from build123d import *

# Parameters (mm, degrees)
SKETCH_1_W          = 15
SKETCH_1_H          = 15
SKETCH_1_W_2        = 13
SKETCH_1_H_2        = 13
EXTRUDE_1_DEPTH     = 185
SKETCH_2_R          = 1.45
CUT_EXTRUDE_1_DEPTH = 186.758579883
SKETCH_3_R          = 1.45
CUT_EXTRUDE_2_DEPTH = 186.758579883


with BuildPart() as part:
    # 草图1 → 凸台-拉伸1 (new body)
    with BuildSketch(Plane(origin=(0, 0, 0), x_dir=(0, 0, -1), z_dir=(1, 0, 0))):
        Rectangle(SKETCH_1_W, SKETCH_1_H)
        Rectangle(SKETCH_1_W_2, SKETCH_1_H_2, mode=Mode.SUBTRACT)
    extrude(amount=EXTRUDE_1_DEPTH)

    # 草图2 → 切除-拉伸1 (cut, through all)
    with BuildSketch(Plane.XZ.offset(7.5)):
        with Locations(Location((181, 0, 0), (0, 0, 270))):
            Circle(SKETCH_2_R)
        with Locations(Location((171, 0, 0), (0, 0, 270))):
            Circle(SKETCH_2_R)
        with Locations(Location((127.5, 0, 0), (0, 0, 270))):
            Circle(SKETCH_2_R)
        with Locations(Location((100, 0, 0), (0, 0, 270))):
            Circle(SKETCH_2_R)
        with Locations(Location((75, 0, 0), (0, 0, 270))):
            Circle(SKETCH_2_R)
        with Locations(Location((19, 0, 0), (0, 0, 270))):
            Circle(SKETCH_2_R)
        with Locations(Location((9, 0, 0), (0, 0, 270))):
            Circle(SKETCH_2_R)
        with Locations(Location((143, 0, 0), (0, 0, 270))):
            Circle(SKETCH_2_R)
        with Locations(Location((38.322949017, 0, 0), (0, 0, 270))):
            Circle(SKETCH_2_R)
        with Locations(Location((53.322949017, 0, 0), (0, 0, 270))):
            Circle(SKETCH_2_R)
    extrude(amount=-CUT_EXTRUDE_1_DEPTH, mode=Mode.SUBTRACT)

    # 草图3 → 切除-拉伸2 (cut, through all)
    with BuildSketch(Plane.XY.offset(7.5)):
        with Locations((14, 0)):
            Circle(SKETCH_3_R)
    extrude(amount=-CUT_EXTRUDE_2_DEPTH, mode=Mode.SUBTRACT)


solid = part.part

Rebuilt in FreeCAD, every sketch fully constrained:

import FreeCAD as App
import Part
import Sketcher

doc = App.newDocument("Part")
body = doc.addObject("PartDesign::Body", "Body")

# Sketch on YZ plane
sketch1 = body.newObject("Sketcher::SketchObject", "Sketch")
sketch1.AttachmentSupport = (doc.getObject("YZ_Plane"), [""])
sketch1.MapMode = "FlatFace"
sketch1.addGeometry([
    Part.LineSegment(App.Vector(8, 8, 0), App.Vector(-8, 8, 0)),  # 0
    Part.LineSegment(App.Vector(-8, 8, 0), App.Vector(-8, -8, 0)),  # 1
    Part.LineSegment(App.Vector(-8, -8, 0), App.Vector(8, -8, 0)),  # 2
    Part.LineSegment(App.Vector(8, -8, 0), App.Vector(8, 8, 0)),  # 3
    Part.LineSegment(App.Vector(-6, -6, 0), App.Vector(-6, 6, 0)),  # 4
    Part.LineSegment(App.Vector(-6, 6, 0), App.Vector(6, 6, 0)),  # 5
    Part.LineSegment(App.Vector(6, 6, 0), App.Vector(6, -6, 0)),  # 6
    Part.LineSegment(App.Vector(6, -6, 0), App.Vector(-6, -6, 0)),  # 7
], False)
sketch1.addConstraint([
    Sketcher.Constraint("Coincident", 0, 2, 1, 1),
    Sketcher.Constraint("Coincident", 1, 2, 2, 1),
    Sketcher.Constraint("Coincident", 2, 2, 3, 1),
    Sketcher.Constraint("Coincident", 3, 2, 0, 1),
    Sketcher.Constraint("Coincident", 4, 2, 5, 1),
    Sketcher.Constraint("Coincident", 5, 2, 6, 1),
    Sketcher.Constraint("Coincident", 6, 2, 7, 1),
    Sketcher.Constraint("Coincident", 7, 2, 4, 1),
    Sketcher.Constraint("Horizontal", 0),
    Sketcher.Constraint("Vertical", 1),
    Sketcher.Constraint("Horizontal", 2),
    Sketcher.Constraint("Vertical", 3),
    Sketcher.Constraint("Vertical", 4),
    Sketcher.Constraint("Horizontal", 5),
    Sketcher.Constraint("Vertical", 6),
    Sketcher.Constraint("Horizontal", 7),
    Sketcher.Constraint("Symmetric", 0, 2, 2, 2, -1, 1),
    Sketcher.Constraint("Symmetric", 4, 2, 6, 2, -1, 1),
    Sketcher.Constraint("Equal", 2, 1),
    Sketcher.Constraint("Equal", 7, 4),
    Sketcher.Constraint("DistanceX", 0, 2, 0, 1, 15.0),
    Sketcher.Constraint("DistanceX", 5, 1, 5, 2, 13.0),
])
pad1 = body.newObject("PartDesign::Pad", "Pad")
pad1.Profile = sketch1
pad1.Length = 185

# Sketch on XZ plane
sketch2 = body.newObject("Sketcher::SketchObject", "Sketch001")
sketch2.AttachmentSupport = (doc.getObject("XZ_Plane"), [""])
sketch2.MapMode = "FlatFace"
sketch2.AttachmentOffset = App.Placement(App.Vector(0, 0, 7.5), App.Rotation())
sketch2.addGeometry([
    Part.Circle(App.Vector(181, 0, 0), App.Vector(0, 0, 1), 1.4),  # 0
    Part.Circle(App.Vector(171, 0, 0), App.Vector(0, 0, 1), 1.4),  # 1
    Part.Circle(App.Vector(127.5, 0, 0), App.Vector(0, 0, 1), 1.4),  # 2
    Part.Circle(App.Vector(100, 0, 0), App.Vector(0, 0, 1), 1.4),  # 3
    Part.Circle(App.Vector(75, 0, 0), App.Vector(0, 0, 1), 1.4),  # 4
    Part.Circle(App.Vector(19, 0, 0), App.Vector(0, 0, 1), 1.4),  # 5
    Part.Circle(App.Vector(9, 0, 0), App.Vector(0, 0, 1), 1.4),  # 6
    Part.Circle(App.Vector(143, 0, 0), App.Vector(0, 0, 1), 1.4),  # 7
    Part.Circle(App.Vector(38.3, 0, 0), App.Vector(0, 0, 1), 1.4),  # 8
    Part.Circle(App.Vector(53.3, 0, 0), App.Vector(0, 0, 1), 1.4),  # 9
], False)
sketch2.addConstraint([
    Sketcher.Constraint("Equal", 0, 1),
    Sketcher.Constraint("Equal", 1, 2),
    Sketcher.Constraint("Equal", 2, 3),
    Sketcher.Constraint("Equal", 3, 4),
    Sketcher.Constraint("Equal", 4, 5),
    Sketcher.Constraint("Equal", 5, 6),
    Sketcher.Constraint("Equal", 6, 7),
    Sketcher.Constraint("Equal", 7, 8),
    Sketcher.Constraint("Equal", 8, 9),
    Sketcher.Constraint("PointOnObject", 0, 3, -1),
    Sketcher.Constraint("PointOnObject", 1, 3, -1),
    Sketcher.Constraint("PointOnObject", 2, 3, -1),
    Sketcher.Constraint("PointOnObject", 3, 3, -1),
    Sketcher.Constraint("PointOnObject", 4, 3, -1),
    Sketcher.Constraint("PointOnObject", 5, 3, -1),
    Sketcher.Constraint("PointOnObject", 6, 3, -1),
    Sketcher.Constraint("PointOnObject", 7, 3, -1),
    Sketcher.Constraint("PointOnObject", 8, 3, -1),
    Sketcher.Constraint("PointOnObject", 9, 3, -1),
    Sketcher.Constraint("Diameter", 0, 2.9),
    Sketcher.Constraint("DistanceX", -1, 1, 0, 3, 181.0),
    Sketcher.Constraint("DistanceX", -1, 1, 1, 3, 171.0),
    Sketcher.Constraint("DistanceX", -1, 1, 3, 3, 100.0),
    Sketcher.Constraint("DistanceX", -1, 1, 4, 3, 75.0),
    Sketcher.Constraint("DistanceX", -1, 1, 5, 3, 19.0),
    Sketcher.Constraint("DistanceX", -1, 1, 6, 3, 9.0),
    Sketcher.Constraint("DistanceX", -1, 1, 7, 3, 143.0),
    Sketcher.Constraint("DistanceX", 8, 3, 9, 3, 15.0),
    Sketcher.Constraint("DistanceX", -1, 1, 2, 3, 127.5),
    Sketcher.Constraint("DistanceX", -1, 1, 8, 3, 38.322949),
])
pocket1 = body.newObject("PartDesign::Pocket", "Pocket")
pocket1.Profile = sketch2
pocket1.Type = "ThroughAll"

# Sketch on XY plane
sketch3 = body.newObject("Sketcher::SketchObject", "Sketch002")
sketch3.AttachmentSupport = (doc.getObject("XY_Plane"), [""])
sketch3.MapMode = "FlatFace"
sketch3.AttachmentOffset = App.Placement(App.Vector(0, 0, 7.5), App.Rotation())
sketch3.addGeometry(Part.Circle(App.Vector(14, 0, 0), App.Vector(0, 0, 1), 1.4), False)
sketch3.addConstraint([
    Sketcher.Constraint("PointOnObject", 0, 3, -1),
    Sketcher.Constraint("Diameter", 0, 2.9),
    Sketcher.Constraint("DistanceX", -1, 1, 0, 3, 14.0),
])
pocket2 = body.newObject("PartDesign::Pocket", "Pocket001")
pocket2.Profile = sketch3
pocket2.Type = "ThroughAll"

doc.recompute()
